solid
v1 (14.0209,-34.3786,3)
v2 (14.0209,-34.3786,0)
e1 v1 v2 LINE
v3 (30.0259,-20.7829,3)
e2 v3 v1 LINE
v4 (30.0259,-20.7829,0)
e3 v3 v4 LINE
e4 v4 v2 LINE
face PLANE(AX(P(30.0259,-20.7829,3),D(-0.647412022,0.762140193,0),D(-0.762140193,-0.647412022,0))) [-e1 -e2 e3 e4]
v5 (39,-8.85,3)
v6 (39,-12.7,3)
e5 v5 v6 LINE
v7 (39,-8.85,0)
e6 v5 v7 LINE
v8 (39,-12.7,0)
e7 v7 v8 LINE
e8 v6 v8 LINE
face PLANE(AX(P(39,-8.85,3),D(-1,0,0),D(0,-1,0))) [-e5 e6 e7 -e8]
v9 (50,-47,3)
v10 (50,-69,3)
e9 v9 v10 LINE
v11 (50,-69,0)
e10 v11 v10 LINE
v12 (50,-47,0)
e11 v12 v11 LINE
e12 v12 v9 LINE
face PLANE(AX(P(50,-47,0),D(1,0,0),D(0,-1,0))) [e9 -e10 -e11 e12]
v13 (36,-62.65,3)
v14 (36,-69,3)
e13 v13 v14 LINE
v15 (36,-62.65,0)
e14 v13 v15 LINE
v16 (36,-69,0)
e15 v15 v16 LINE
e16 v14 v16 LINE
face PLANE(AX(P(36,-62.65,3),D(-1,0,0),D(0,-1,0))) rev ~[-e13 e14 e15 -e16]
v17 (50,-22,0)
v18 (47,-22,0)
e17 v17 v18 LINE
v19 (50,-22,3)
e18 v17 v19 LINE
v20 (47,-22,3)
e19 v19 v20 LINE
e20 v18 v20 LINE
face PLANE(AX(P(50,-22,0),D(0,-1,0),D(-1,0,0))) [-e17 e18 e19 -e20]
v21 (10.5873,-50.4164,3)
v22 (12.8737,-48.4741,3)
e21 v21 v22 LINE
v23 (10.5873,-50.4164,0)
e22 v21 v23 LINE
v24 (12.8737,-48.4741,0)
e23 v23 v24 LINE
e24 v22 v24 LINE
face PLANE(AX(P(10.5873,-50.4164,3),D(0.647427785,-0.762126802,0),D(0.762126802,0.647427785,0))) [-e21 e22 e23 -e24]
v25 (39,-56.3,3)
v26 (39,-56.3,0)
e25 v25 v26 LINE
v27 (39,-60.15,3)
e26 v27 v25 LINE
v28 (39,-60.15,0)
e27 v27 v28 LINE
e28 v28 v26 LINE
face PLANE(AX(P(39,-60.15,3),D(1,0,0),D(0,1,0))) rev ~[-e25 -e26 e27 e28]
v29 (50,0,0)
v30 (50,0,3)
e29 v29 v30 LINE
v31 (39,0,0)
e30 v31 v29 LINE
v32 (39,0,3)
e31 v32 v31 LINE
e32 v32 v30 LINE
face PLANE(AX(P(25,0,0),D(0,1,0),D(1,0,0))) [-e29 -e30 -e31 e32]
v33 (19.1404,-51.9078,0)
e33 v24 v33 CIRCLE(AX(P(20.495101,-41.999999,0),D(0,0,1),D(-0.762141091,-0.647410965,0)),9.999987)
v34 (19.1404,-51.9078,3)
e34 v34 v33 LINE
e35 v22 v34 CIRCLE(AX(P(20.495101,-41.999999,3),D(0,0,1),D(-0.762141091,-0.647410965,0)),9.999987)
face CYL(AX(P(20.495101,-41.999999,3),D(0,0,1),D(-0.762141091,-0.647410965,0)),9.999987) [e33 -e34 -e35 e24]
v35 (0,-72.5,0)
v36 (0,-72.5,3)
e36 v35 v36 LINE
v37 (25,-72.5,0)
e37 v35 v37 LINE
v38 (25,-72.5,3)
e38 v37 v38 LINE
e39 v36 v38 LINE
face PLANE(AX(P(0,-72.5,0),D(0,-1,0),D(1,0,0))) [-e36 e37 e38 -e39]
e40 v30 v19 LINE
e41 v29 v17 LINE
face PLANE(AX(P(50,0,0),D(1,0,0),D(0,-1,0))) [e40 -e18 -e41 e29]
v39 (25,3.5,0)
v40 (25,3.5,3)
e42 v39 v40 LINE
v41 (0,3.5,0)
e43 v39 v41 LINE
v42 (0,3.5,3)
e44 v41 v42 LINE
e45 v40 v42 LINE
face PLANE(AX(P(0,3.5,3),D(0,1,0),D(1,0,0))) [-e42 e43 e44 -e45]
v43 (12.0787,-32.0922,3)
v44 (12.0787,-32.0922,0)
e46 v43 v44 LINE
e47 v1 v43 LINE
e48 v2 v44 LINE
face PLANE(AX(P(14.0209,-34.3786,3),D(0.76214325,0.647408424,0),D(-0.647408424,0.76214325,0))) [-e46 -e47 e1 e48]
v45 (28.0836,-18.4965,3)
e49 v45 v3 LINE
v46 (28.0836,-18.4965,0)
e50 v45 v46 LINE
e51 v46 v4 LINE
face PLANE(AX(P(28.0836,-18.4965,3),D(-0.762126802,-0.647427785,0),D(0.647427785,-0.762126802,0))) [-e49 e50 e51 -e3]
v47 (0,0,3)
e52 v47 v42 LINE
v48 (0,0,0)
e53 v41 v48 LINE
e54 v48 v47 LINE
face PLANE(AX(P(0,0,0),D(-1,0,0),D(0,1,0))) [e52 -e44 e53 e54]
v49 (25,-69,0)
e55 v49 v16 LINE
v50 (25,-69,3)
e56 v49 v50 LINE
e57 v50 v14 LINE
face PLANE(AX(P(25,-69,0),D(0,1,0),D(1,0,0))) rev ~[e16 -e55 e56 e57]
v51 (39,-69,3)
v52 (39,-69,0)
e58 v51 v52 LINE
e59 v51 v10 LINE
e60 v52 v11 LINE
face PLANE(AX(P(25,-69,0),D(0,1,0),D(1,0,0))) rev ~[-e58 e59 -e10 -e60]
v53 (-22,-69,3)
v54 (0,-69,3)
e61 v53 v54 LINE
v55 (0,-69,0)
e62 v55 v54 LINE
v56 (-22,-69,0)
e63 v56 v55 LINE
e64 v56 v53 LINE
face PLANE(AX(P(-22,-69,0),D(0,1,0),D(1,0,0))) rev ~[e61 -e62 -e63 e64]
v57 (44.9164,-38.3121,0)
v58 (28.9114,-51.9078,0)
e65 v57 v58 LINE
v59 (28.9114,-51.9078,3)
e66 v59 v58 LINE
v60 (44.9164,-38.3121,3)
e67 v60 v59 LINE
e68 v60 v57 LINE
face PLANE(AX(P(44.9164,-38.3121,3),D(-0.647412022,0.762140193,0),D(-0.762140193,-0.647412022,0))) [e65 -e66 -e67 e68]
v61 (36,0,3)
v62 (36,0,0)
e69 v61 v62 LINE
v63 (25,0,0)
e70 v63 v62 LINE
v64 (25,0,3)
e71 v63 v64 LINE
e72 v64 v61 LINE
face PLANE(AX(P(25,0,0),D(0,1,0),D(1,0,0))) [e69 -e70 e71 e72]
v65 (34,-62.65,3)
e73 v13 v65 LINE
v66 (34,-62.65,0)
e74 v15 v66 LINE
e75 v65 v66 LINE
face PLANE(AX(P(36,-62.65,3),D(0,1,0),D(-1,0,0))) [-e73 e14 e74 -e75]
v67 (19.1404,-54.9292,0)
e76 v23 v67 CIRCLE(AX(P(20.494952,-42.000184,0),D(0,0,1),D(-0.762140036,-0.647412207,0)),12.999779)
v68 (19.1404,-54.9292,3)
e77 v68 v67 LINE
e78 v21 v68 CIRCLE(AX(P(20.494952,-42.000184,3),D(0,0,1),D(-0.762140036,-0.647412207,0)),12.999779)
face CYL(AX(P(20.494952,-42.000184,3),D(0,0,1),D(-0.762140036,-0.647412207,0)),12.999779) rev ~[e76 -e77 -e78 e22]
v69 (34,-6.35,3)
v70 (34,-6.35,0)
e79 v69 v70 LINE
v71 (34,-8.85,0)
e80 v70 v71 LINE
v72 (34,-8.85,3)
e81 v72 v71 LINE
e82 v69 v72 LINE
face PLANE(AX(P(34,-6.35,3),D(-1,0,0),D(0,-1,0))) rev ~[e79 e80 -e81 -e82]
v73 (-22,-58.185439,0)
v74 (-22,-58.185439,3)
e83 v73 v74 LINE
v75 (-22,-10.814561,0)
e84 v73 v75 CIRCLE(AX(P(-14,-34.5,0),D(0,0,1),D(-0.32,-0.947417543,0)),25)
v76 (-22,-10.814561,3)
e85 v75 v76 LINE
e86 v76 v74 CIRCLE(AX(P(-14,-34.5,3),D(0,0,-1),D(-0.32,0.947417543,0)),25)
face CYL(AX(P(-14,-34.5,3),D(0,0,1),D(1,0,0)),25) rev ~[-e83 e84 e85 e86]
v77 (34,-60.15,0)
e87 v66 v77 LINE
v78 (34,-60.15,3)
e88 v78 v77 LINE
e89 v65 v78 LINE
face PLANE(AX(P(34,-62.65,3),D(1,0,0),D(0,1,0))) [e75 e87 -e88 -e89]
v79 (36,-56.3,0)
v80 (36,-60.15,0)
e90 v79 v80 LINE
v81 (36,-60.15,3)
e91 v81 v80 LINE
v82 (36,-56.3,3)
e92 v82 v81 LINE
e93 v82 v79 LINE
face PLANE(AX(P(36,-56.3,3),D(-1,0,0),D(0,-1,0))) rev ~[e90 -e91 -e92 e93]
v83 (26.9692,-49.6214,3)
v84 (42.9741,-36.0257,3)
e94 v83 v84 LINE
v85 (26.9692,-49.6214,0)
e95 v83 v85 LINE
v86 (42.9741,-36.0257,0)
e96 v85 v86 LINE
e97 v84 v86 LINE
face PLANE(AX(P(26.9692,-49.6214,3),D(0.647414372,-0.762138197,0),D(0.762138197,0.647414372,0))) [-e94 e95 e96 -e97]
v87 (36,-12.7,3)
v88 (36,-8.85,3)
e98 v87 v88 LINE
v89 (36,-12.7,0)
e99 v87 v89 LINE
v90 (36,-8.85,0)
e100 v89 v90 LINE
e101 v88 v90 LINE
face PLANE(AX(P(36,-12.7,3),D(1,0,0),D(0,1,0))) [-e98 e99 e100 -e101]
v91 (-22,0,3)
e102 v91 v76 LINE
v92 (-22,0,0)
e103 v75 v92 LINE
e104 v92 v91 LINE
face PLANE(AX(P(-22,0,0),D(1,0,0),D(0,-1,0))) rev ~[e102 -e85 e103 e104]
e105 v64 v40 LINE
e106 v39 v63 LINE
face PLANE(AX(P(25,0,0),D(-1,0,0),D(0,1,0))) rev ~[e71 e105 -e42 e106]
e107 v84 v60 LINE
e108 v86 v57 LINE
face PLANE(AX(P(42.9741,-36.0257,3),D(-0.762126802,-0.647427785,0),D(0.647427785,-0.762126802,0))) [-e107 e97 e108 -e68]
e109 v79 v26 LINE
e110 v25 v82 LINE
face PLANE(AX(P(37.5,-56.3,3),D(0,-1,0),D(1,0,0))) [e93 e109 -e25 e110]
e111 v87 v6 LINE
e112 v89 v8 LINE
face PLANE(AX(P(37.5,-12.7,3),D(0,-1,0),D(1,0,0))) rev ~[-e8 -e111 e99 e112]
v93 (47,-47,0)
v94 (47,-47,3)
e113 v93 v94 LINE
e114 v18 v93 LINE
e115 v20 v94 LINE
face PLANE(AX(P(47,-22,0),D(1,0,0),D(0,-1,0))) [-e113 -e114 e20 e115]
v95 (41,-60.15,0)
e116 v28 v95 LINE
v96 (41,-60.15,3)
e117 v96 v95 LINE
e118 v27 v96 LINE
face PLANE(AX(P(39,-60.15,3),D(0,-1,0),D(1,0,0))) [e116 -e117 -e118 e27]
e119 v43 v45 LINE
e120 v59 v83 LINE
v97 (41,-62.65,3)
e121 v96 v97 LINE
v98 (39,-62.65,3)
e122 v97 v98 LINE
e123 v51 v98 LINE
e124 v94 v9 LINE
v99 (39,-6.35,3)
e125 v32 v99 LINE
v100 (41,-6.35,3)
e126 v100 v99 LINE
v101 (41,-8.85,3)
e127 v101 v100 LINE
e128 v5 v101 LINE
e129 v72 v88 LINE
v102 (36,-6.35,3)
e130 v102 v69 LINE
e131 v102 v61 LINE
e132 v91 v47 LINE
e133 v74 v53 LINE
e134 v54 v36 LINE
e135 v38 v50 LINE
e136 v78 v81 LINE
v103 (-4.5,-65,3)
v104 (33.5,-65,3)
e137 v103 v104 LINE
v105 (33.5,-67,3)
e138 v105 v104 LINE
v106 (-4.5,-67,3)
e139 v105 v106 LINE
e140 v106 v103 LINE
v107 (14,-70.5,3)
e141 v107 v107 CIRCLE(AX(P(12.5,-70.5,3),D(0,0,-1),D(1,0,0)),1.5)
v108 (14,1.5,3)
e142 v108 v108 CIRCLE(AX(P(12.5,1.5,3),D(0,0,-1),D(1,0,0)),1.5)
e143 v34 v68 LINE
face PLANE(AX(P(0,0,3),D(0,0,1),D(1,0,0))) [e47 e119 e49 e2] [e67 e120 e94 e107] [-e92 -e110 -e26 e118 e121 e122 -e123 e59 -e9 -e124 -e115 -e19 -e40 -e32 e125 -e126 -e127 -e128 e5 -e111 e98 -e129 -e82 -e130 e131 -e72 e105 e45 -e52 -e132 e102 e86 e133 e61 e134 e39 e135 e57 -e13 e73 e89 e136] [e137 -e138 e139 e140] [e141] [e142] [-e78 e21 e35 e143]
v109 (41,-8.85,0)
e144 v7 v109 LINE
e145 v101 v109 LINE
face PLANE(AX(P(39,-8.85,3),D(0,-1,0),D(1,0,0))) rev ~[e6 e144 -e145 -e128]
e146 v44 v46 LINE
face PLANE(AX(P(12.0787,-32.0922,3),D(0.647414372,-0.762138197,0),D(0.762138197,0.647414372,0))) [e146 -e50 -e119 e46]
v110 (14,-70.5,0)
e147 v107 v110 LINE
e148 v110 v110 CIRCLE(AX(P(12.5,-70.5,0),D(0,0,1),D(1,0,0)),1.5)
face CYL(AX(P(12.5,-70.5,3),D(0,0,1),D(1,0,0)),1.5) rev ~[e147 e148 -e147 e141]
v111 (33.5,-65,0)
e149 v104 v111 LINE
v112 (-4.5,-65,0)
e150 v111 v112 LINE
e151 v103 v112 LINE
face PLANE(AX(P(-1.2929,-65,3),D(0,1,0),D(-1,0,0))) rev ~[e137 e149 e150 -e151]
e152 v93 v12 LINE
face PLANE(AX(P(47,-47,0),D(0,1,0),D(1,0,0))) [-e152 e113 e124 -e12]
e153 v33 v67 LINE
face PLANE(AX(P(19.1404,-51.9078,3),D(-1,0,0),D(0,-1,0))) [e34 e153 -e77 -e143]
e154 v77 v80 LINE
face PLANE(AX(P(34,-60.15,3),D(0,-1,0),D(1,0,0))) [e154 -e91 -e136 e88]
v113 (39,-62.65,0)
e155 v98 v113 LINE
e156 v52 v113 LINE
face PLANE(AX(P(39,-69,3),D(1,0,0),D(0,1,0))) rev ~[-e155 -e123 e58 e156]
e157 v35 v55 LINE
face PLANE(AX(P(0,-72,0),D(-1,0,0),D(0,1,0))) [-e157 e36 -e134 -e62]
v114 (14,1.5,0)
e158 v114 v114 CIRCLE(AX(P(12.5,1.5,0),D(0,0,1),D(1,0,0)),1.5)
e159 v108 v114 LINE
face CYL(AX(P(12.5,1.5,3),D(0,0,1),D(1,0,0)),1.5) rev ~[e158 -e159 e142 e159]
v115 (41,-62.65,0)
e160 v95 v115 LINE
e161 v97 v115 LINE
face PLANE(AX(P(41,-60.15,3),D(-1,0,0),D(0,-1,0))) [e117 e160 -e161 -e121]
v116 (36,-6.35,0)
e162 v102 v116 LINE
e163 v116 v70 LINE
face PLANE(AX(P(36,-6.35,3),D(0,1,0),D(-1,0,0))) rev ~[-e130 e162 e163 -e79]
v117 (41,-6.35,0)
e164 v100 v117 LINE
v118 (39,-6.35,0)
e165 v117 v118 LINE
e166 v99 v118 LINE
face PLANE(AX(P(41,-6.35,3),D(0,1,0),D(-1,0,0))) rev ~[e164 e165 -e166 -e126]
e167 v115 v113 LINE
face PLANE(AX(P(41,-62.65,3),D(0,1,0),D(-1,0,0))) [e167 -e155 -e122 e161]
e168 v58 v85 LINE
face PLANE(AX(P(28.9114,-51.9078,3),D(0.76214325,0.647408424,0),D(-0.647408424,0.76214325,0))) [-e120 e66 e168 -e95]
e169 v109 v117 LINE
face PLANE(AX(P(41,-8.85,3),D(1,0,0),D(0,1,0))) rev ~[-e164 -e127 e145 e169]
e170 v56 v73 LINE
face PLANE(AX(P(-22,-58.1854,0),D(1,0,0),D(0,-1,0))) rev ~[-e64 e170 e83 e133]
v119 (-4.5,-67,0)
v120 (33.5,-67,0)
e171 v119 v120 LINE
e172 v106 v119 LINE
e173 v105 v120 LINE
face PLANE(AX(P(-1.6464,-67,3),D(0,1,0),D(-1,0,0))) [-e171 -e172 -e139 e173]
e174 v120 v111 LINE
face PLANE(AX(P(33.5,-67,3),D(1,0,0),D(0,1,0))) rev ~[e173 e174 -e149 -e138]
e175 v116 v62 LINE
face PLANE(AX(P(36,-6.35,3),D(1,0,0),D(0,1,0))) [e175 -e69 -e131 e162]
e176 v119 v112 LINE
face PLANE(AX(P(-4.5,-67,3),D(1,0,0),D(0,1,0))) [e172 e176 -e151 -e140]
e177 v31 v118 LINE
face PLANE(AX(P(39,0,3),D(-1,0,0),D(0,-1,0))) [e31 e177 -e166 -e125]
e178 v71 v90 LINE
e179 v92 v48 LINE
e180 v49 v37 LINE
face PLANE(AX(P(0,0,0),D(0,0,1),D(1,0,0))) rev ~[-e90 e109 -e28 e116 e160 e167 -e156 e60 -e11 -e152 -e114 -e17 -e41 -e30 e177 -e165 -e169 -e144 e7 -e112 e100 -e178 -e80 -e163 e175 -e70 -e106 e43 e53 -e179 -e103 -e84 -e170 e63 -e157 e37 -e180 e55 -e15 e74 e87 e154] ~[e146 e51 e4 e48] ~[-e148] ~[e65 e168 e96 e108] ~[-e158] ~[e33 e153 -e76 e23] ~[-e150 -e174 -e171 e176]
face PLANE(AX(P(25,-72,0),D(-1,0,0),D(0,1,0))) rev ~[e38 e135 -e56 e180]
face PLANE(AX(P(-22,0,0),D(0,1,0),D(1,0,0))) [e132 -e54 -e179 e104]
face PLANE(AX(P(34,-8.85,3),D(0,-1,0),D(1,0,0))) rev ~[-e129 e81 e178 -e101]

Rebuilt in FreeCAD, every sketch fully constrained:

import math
import FreeCAD as App
import Part
import Sketcher

doc = App.newDocument("Part")
body = doc.addObject("PartDesign::Body", "Body")

sketch1 = body.newObject("Sketcher::SketchObject", "Sketch")
sketch1.AttachmentSupport = (doc.getObject("XY_Plane"), [""])
sketch1.MapMode = "FlatFace"
sketch1.addGeometry(Part.LineSegment(App.Vector(0, 3, 0), App.Vector(0, 0, 0)), False)
sketch1.addGeometry(Part.LineSegment(App.Vector(0, 0, 0), App.Vector(-22, 0, 0)), False)
sketch1.addGeometry(Part.LineSegment(App.Vector(-22, 0, 0), App.Vector(-22, -22, 0)), False)
sketch1.addGeometry(Part.LineSegment(App.Vector(-22, -22, 0), App.Vector(-25, -22, 0)), False)
sketch1.addGeometry(Part.LineSegment(App.Vector(-25, -22, 0), App.Vector(-25, -47, 0)), False)
sketch1.addGeometry(Part.LineSegment(App.Vector(-25, -47, 0), App.Vector(-22, -47, 0)), False)
sketch1.addGeometry(Part.LineSegment(App.Vector(-22, -47, 0), App.Vector(-22, -69, 0)), False)
sketch1.addGeometry(Part.LineSegment(App.Vector(-22, -69, 0), App.Vector(0, -69, 0)), False)
sketch1.addGeometry(Part.LineSegment(App.Vector(0, -69, 0), App.Vector(0, -72, 0)), False)
sketch1.addGeometry(Part.LineSegment(App.Vector(0, -72, 0), App.Vector(25, -72, 0)), False)
sketch1.addGeometry(Part.LineSegment(App.Vector(25, -72, 0), App.Vector(25, -69, 0)), False)
sketch1.addGeometry(Part.LineSegment(App.Vector(25, -69, 0), App.Vector(50, -69, 0)), False)
sketch1.addGeometry(Part.LineSegment(App.Vector(50, -69, 0), App.Vector(50, -47, 0)), False)
sketch1.addGeometry(Part.LineSegment(App.Vector(50, -47, 0), App.Vector(47, -47, 0)), False)
sketch1.addGeometry(Part.LineSegment(App.Vector(47, -47, 0), App.Vector(47, -22, 0)), False)
sketch1.addGeometry(Part.LineSegment(App.Vector(47, -22, 0), App.Vector(50, -22, 0)), False)
sketch1.addGeometry(Part.LineSegment(App.Vector(50, -22, 0), App.Vector(50, 0, 0)), False)
sketch1.addGeometry(Part.LineSegment(App.Vector(50, 0, 0), App.Vector(25, 0, 0)), False)
sketch1.addGeometry(Part.LineSegment(App.Vector(25, 0, 0), App.Vector(25, 3, 0)), False)
sketch1.addGeometry(Part.LineSegment(App.Vector(25, 3, 0), App.Vector(0, 3, 0)), False)
sketch1.addConstraint(Sketcher.Constraint("Coincident", 0, 2, 1, 1))
sketch1.addConstraint(Sketcher.Constraint("Coincident", 1, 2, 2, 1))
sketch1.addConstraint(Sketcher.Constraint("Coincident", 2, 2, 3, 1))
sketch1.addConstraint(Sketcher.Constraint("Coincident", 3, 2, 4, 1))
sketch1.addConstraint(Sketcher.Constraint("Coincident", 4, 2, 5, 1))
sketch1.addConstraint(Sketcher.Constraint("Coincident", 5, 2, 6, 1))
sketch1.addConstraint(Sketcher.Constraint("Coincident", 6, 2, 7, 1))
sketch1.addConstraint(Sketcher.Constraint("Coincident", 7, 2, 8, 1))
sketch1.addConstraint(Sketcher.Constraint("Coincident", 8, 2, 9, 1))
sketch1.addConstraint(Sketcher.Constraint("Coincident", 9, 2, 10, 1))
sketch1.addConstraint(Sketcher.Constraint("Coincident", 10, 2, 11, 1))
sketch1.addConstraint(Sketcher.Constraint("Coincident", 11, 2, 12, 1))
sketch1.addConstraint(Sketcher.Constraint("Coincident", 12, 2, 13, 1))
sketch1.addConstraint(Sketcher.Constraint("Coincident", 13, 2, 14, 1))
sketch1.addConstraint(Sketcher.Constraint("Coincident", 14, 2, 15, 1))
sketch1.addConstraint(Sketcher.Constraint("Coincident", 15, 2, 16, 1))
sketch1.addConstraint(Sketcher.Constraint("Coincident", 16, 2, 17, 1))
sketch1.addConstraint(Sketcher.Constraint("Coincident", 17, 2, 18, 1))
sketch1.addConstraint(Sketcher.Constraint("Coincident", 18, 2, 19, 1))
sketch1.addConstraint(Sketcher.Constraint("Coincident", 19, 2, 0, 1))
sketch1.addConstraint(Sketcher.Constraint("Vertical", 0))
sketch1.addConstraint(Sketcher.Constraint("Horizontal", 1))
sketch1.addConstraint(Sketcher.Constraint("Vertical", 2))
sketch1.addConstraint(Sketcher.Constraint("Horizontal", 3))
sketch1.addConstraint(Sketcher.Constraint("Vertical", 4))
sketch1.addConstraint(Sketcher.Constraint("Horizontal", 5))
sketch1.addConstraint(Sketcher.Constraint("Vertical", 6))
sketch1.addConstraint(Sketcher.Constraint("Horizontal", 7))
sketch1.addConstraint(Sketcher.Constraint("Vertical", 8))
sketch1.addConstraint(Sketcher.Constraint("Horizontal", 9))
sketch1.addConstraint(Sketcher.Constraint("Vertical", 10))
sketch1.addConstraint(Sketcher.Constraint("Horizontal", 11))
sketch1.addConstraint(Sketcher.Constraint("Vertical", 12))
sketch1.addConstraint(Sketcher.Constraint("Horizontal", 13))
sketch1.addConstraint(Sketcher.Constraint("Vertical", 14))
sketch1.addConstraint(Sketcher.Constraint("Horizontal", 15))
sketch1.addConstraint(Sketcher.Constraint("Vertical", 16))
sketch1.addConstraint(Sketcher.Constraint("Horizontal", 17))
sketch1.addConstraint(Sketcher.Constraint("Vertical", 18))
sketch1.addConstraint(Sketcher.Constraint("Horizontal", 19))
sketch1.addConstraint(Sketcher.Constraint("Coincident", 0, 2, -1, 1))
sketch1.addConstraint(Sketcher.Constraint("PointOnObject", 7, 2, -2))
sketch1.addConstraint(Sketcher.Constraint("PointOnObject", 16, 2, -1))
sketch1.addConstraint(Sketcher.Constraint("Horizontal", 7, 2, 10, 2))
sketch1.addConstraint(Sketcher.Constraint("Horizontal", 5, 2, 12, 2))
sketch1.addConstraint(Sketcher.Constraint("Horizontal", 3, 2, 14, 2))
sketch1.addConstraint(Sketcher.Constraint("Vertical", 2, 2, 5, 2))
sketch1.addConstraint(Sketcher.Constraint("Vertical", 12, 2, 15, 2))
sketch1.addConstraint(Sketcher.Constraint("Vertical", 10, 2, 17, 2))
sketch1.addConstraint(Sketcher.Constraint("Equal", 9, 11))
sketch1.addConstraint(Sketcher.Constraint("Equal", 5, 13))
sketch1.addConstraint(Sketcher.Constraint("Equal", 15, 0))
sketch1.addConstraint(Sketcher.Constraint("Equal", 7, 2))
sketch1.addConstraint(Sketcher.Constraint("Equal", 19, 4))
sketch1.addConstraint(Sketcher.Constraint("Equal", 2, 6))
sketch1.addConstraint(Sketcher.Constraint("Equal", 0, 8))
sketch1.addConstraint(Sketcher.Constraint("DistanceX", 3, 2, 3, 1, 3.0))
sketch1.addConstraint(Sketcher.Constraint("DistanceX", 1, 2, 1, 1, 22.0))
sketch1.addConstraint(Sketcher.Constraint("DistanceX", 9, 1, 9, 2, 25.0))
pad1 = body.newObject("PartDesign::Pad", "Pad")
pad1.Profile = sketch1
pad1.Length = 3

sketch2 = body.newObject("Sketcher::SketchObject", "Sketch001")
sketch2.AttachmentSupport = (doc.getObject("XY_Plane"), [""])
sketch2.MapMode = "FlatFace"
sketch2.AttachmentOffset = App.Placement(App.Vector(0, 0, 3), App.Rotation())
sketch2.addGeometry(Part.Circle(App.Vector(-14, -34, 0), App.Vector(0, 0, 1), 25), False)
sketch2.addConstraint(Sketcher.Constraint("Diameter", 0, 50.0))
sketch2.addConstraint(Sketcher.Constraint("DistanceX", 0, 3, -1, 1, 14.0))
sketch2.addConstraint(Sketcher.Constraint("DistanceY", 0, 3, -1, 1, 34.5))
pocket1 = body.newObject("PartDesign::Pocket", "Pocket")
pocket1.Profile = sketch2
pocket1.Length = 20

sketch3 = body.newObject("Sketcher::SketchObject", "Sketch002")
sketch3.AttachmentSupport = (doc.getObject("XY_Plane"), [""])
sketch3.MapMode = "FlatFace"
sketch3.AttachmentOffset = App.Placement(App.Vector(0, 0, 3), App.Rotation())
sketch3.addGeometry(Part.LineSegment(App.Vector(33.5, -65, 0), App.Vector(-4.5, -65, 0)), False)
sketch3.addGeometry(Part.LineSegment(App.Vector(-4.5, -65, 0), App.Vector(-4.5, -67, 0)), False)
sketch3.addGeometry(Part.LineSegment(App.Vector(-4.5, -67, 0), App.Vector(33.5, -67, 0)), False)
sketch3.addGeometry(Part.LineSegment(App.Vector(33.5, -67, 0), App.Vector(33.5, -65, 0)), False)
sketch3.addConstraint(Sketcher.Constraint("Coincident", 0, 2, 1, 1))
sketch3.addConstraint(Sketcher.Constraint("Coincident", 1, 2, 2, 1))
sketch3.addConstraint(Sketcher.Constraint("Coincident", 2, 2, 3, 1))
sketch3.addConstraint(Sketcher.Constraint("Coincident", 3, 2, 0, 1))
sketch3.addConstraint(Sketcher.Constraint("Horizontal", 0))
sketch3.addConstraint(Sketcher.Constraint("Vertical", 1))
sketch3.addConstraint(Sketcher.Constraint("Horizontal", 2))
sketch3.addConstraint(Sketcher.Constraint("Vertical", 3))
sketch3.addConstraint(Sketcher.Constraint("DistanceX", 0, 2, 0, 1, 38.0))
sketch3.addConstraint(Sketcher.Constraint("DistanceY", 1, 2, 1, 1, 2.0))
sketch3.addConstraint(Sketcher.Constraint("DistanceY", 0, 2, -1, 1, 65.0))
sketch3.addConstraint(Sketcher.Constraint("DistanceX", 0, 2, -1, 1, 4.5))
pocket2 = body.newObject("PartDesign::Pocket", "Pocket001")
pocket2.Profile = sketch3
pocket2.Length = 3

sketch4 = body.newObject("Sketcher::SketchObject", "Sketch003")
sketch4.AttachmentSupport = (doc.getObject("XY_Plane"), [""])
sketch4.MapMode = "FlatFace"
sketch4.AttachmentOffset = App.Placement(App.Vector(0, 0, 3), App.Rotation())
sketch4.addGeometry(Part.Circle(App.Vector(12.5, 1.5, 0), App.Vector(0, 0, 1), 1.5), False)
sketch4.addGeometry(Part.Circle(App.Vector(12.5, -70.5, 0), App.Vector(0, 0, 1), 1.5), False)
sketch4.addGeometry(Part.LineSegment(App.Vector(39, -69, 0), App.Vector(39, -62.6, 0)), False)
sketch4.addGeometry(Part.LineSegment(App.Vector(39, -62.6, 0), App.Vector(41, -62.6, 0)), False)
sketch4.addGeometry(Part.LineSegment(App.Vector(41, -62.6, 0), App.Vector(41, -60.1, 0)), False)
sketch4.addGeometry(Part.LineSegment(App.Vector(41, -60.1, 0), App.Vector(39, -60.1, 0)), False)
sketch4.addGeometry(Part.LineSegment(App.Vector(39, -60.1, 0), App.Vector(39, -56.3, 0)), False)
sketch4.addGeometry(Part.LineSegment(App.Vector(39, -56.3, 0), App.Vector(36, -56.3, 0)), False)
sketch4.addGeometry(Part.LineSegment(App.Vector(36, -56.3, 0), App.Vector(36, -60.1, 0)), False)
sketch4.addGeometry(Part.LineSegment(App.Vector(36, -60.1, 0), App.Vector(34, -60.1, 0)), False)
sketch4.addGeometry(Part.LineSegment(App.Vector(34, -60.1, 0), App.Vector(34, -62.6, 0)), False)
sketch4.addGeometry(Part.LineSegment(App.Vector(34, -62.6, 0), App.Vector(36, -62.6, 0)), False)
sketch4.addGeometry(Part.LineSegment(App.Vector(36, -62.6, 0), App.Vector(36, -69, 0)), False)
sketch4.addGeometry(Part.LineSegment(App.Vector(36, -69, 0), App.Vector(39, -69, 0)), False)
sketch4.addGeometry(Part.LineSegment(App.Vector(39, -6.3, 0), App.Vector(39, 0, 0)), False)
sketch4.addGeometry(Part.LineSegment(App.Vector(39, 0, 0), App.Vector(36, 0, 0)), False)
sketch4.addGeometry(Part.LineSegment(App.Vector(36, 0, 0), App.Vector(36, -6.3, 0)), False)
sketch4.addGeometry(Part.LineSegment(App.Vector(36, -6.3, 0), App.Vector(34, -6.3, 0)), False)
sketch4.addGeometry(Part.LineSegment(App.Vector(34, -6.3, 0), App.Vector(34, -8.8, 0)), False)
sketch4.addGeometry(Part.LineSegment(App.Vector(34, -8.8, 0), App.Vector(36, -8.8, 0)), False)
sketch4.addGeometry(Part.LineSegment(App.Vector(36, -8.8, 0), App.Vector(36, -12.7, 0)), False)
sketch4.addGeometry(Part.LineSegment(App.Vector(36, -12.7, 0), App.Vector(39, -12.7, 0)), False)
sketch4.addGeometry(Part.LineSegment(App.Vector(39, -12.7, 0), App.Vector(39, -8.8, 0)), False)
sketch4.addGeometry(Part.LineSegment(App.Vector(39, -8.8, 0), App.Vector(41, -8.8, 0)), False)
sketch4.addGeometry(Part.LineSegment(App.Vector(41, -8.8, 0), App.Vector(41, -6.3, 0)), False)
sketch4.addGeometry(Part.LineSegment(App.Vector(41, -6.3, 0), App.Vector(39, -6.3, 0)), False)
sketch4.addConstraint(Sketcher.Constraint("Coincident", 2, 2, 3, 1))
sketch4.addConstraint(Sketcher.Constraint("Coincident", 3, 2, 4, 1))
sketch4.addConstraint(Sketcher.Constraint("Coincident", 4, 2, 5, 1))
sketch4.addConstraint(Sketcher.Constraint("Coincident", 5, 2, 6, 1))
sketch4.addConstraint(Sketcher.Constraint("Coincident", 6, 2, 7, 1))
sketch4.addConstraint(Sketcher.Constraint("Coincident", 7, 2, 8, 1))
sketch4.addConstraint(Sketcher.Constraint("Coincident", 8, 2, 9, 1))
sketch4.addConstraint(Sketcher.Constraint("Coincident", 9, 2, 10, 1))
sketch4.addConstraint(Sketcher.Constraint("Coincident", 10, 2, 11, 1))
sketch4.addConstraint(Sketcher.Constraint("Coincident", 11, 2, 12, 1))
sketch4.addConstraint(Sketcher.Constraint("Coincident", 12, 2, 13, 1))
sketch4.addConstraint(Sketcher.Constraint("Coincident", 13, 2, 2, 1))
sketch4.addConstraint(Sketcher.Constraint("Coincident", 14, 2, 15, 1))
sketch4.addConstraint(Sketcher.Constraint("Coincident", 15, 2, 16, 1))
sketch4.addConstraint(Sketcher.Constraint("Coincident", 16, 2, 17, 1))
sketch4.addConstraint(Sketcher.Constraint("Coincident", 17, 2, 18, 1))
sketch4.addConstraint(Sketcher.Constraint("Coincident", 18, 2, 19, 1))
sketch4.addConstraint(Sketcher.Constraint("Coincident", 19, 2, 20, 1))
sketch4.addConstraint(Sketcher.Constraint("Coincident", 20, 2, 21, 1))
sketch4.addConstraint(Sketcher.Constraint("Coincident", 21, 2, 22, 1))
sketch4.addConstraint(Sketcher.Constraint("Coincident", 22, 2, 23, 1))
sketch4.addConstraint(Sketcher.Constraint("Coincident", 23, 2, 24, 1))
sketch4.addConstraint(Sketcher.Constraint("Coincident", 24, 2, 25, 1))
sketch4.addConstraint(Sketcher.Constraint("Coincident", 25, 2, 14, 1))
sketch4.addConstraint(Sketcher.Constraint("Vertical", 2))
sketch4.addConstraint(Sketcher.Constraint("Horizontal", 3))
sketch4.addConstraint(Sketcher.Constraint("Vertical", 4))
sketch4.addConstraint(Sketcher.Constraint("Horizontal", 5))
sketch4.addConstraint(Sketcher.Constraint("Vertical", 6))
sketch4.addConstraint(Sketcher.Constraint("Horizontal", 7))
sketch4.addConstraint(Sketcher.Constraint("Vertical", 8))
sketch4.addConstraint(Sketcher.Constraint("Horizontal", 9))
sketch4.addConstraint(Sketcher.Constraint("Vertical", 10))
sketch4.addConstraint(Sketcher.Constraint("Horizontal", 11))
sketch4.addConstraint(Sketcher.Constraint("Vertical", 12))
sketch4.addConstraint(Sketcher.Constraint("Horizontal", 13))
sketch4.addConstraint(Sketcher.Constraint("Vertical", 14))
sketch4.addConstraint(Sketcher.Constraint("Horizontal", 15))
sketch4.addConstraint(Sketcher.Constraint("Vertical", 16))
sketch4.addConstraint(Sketcher.Constraint("Horizontal", 17))
sketch4.addConstraint(Sketcher.Constraint("Vertical", 18))
sketch4.addConstraint(Sketcher.Constraint("Horizontal", 19))
sketch4.addConstraint(Sketcher.Constraint("Vertical", 20))
sketch4.addConstraint(Sketcher.Constraint("Horizontal", 21))
sketch4.addConstraint(Sketcher.Constraint("Vertical", 22))
sketch4.addConstraint(Sketcher.Constraint("Horizontal", 23))
sketch4.addConstraint(Sketcher.Constraint("Vertical", 24))
sketch4.addConstraint(Sketcher.Constraint("Horizontal", 25))
sketch4.addConstraint(Sketcher.Constraint("Equal", 0, 1))
sketch4.addConstraint(Sketcher.Constraint("PointOnObject", 14, 2, -1))
sketch4.addConstraint(Sketcher.Constraint("Horizontal", 5, 2, 8, 2))
sketch4.addConstraint(Sketcher.Constraint("Horizontal", 3, 2, 10, 2))
sketch4.addConstraint(Sketcher.Constraint("Horizontal", 19, 2, 22, 2))
sketch4.addConstraint(Sketcher.Constraint("Horizontal", 17, 2, 24, 2))
sketch4.addConstraint(Sketcher.Constraint("Vertical", 0, 3, 1, 3))
sketch4.addConstraint(Sketcher.Constraint("Vertical", 2, 2, 5, 2))
sketch4.addConstraint(Sketcher.Constraint("Vertical", 8, 2, 11, 2))
sketch4.addConstraint(Sketcher.Constraint("Vertical", 13, 2, 14, 2))
sketch4.addConstraint(Sketcher.Constraint("Vertical", 12, 2, 15, 2))
sketch4.addConstraint(Sketcher.Constraint("Vertical", 10, 2, 17, 2))
sketch4.addConstraint(Sketcher.Constraint("Vertical", 16, 2, 19, 2))
sketch4.addConstraint(Sketcher.Constraint("Vertical", 14, 2, 21, 2))
sketch4.addConstraint(Sketcher.Constraint("Vertical", 4, 2, 23, 2))
sketch4.addConstraint(Sketcher.Constraint("Equal", 5, 9))
sketch4.addConstraint(Sketcher.Constraint("Equal", 12, 14))
sketch4.addConstraint(Sketcher.Constraint("Equal", 10, 18))
sketch4.addConstraint(Sketcher.Constraint("Equal", 8, 20))
sketch4.addConstraint(Sketcher.Constraint("Diameter", 0, 3.0))
sketch4.addConstraint(Sketcher.Constraint("DistanceX", 3, 1, 3, 2, 2.0))
sketch4.addConstraint(Sketcher.Constraint("DistanceX", 7, 2, 7, 1, 3.0))
sketch4.addConstraint(Sketcher.Constraint("DistanceY", 4, 1, 4, 2, 2.5))
sketch4.addConstraint(Sketcher.Constraint("DistanceY", -1, 1, 0, 3, 1.5))
sketch4.addConstraint(Sketcher.Constraint("DistanceY", 20, 2, -1, 1, 12.7))
sketch4.addConstraint(Sketcher.Constraint("DistanceX", -1, 1, 2, 2, 39.0))
sketch4.addConstraint(Sketcher.Constraint("DistanceY", 12, 2, -1, 1, 69.0))
sketch4.addConstraint(Sketcher.Constraint("DistanceY", 1, 3, 0, 3, 72.0))
sketch4.addConstraint(Sketcher.Constraint("DistanceY", 2, 1, 2, 2, 6.35))
sketch4.addConstraint(Sketcher.Constraint("DistanceX", -1, 1, 0, 3, 12.5))
pocket3 = body.newObject("PartDesign::Pocket", "Pocket002")
pocket3.Profile = sketch4
pocket3.Length = 25.4

sketch5 = body.newObject("Sketcher::SketchObject", "Sketch004")
sketch5.AttachmentSupport = (doc.getObject("XY_Plane"), [""])
sketch5.MapMode = "FlatFace"
sketch5.AttachmentOffset = App.Placement(App.Vector(0, 0, 3), App.Rotation())
sketch5.addGeometry(Part.LineSegment(App.Vector(43, -36, 0), App.Vector(27, -49.6, 0)), False)
sketch5.addGeometry(Part.LineSegment(App.Vector(27, -49.6, 0), App.Vector(28.9, -51.9, 0)), False)
sketch5.addGeometry(Part.LineSegment(App.Vector(28.9, -51.9, 0), App.Vector(44.9, -38.3, 0)), False)
sketch5.addGeometry(Part.LineSegment(App.Vector(44.9, -38.3, 0), App.Vector(43, -36, 0)), False)
sketch5.addGeometry(Part.LineSegment(App.Vector(14, -34.4, 0), App.Vector(30, -20.8, 0)), False)
sketch5.addGeometry(Part.LineSegment(App.Vector(30, -20.8, 0), App.Vector(28.1, -18.5, 0)), False)
sketch5.addGeometry(Part.LineSegment(App.Vector(28.1, -18.5, 0), App.Vector(12.1, -32.1, 0)), False)
sketch5.addGeometry(Part.LineSegment(App.Vector(12.1, -32.1, 0), App.Vector(14, -34.4, 0)), False)
sketch5.addGeometry(Part.LineSegment(App.Vector(12.9, -48.5, 0), App.Vector(10.6, -50.4, 0)), False)
sketch5.addGeometry(Part.ArcOfCircle(Part.Circle(App.Vector(20.5, -42, 0), App.Vector(0, 0, 1), 13), math.radians(-140), math.radians(-96)), False)
sketch5.addGeometry(Part.LineSegment(App.Vector(19.1, -54.9, 0), App.Vector(19.1, -51.9, 0)), False)
sketch5.addGeometry(Part.ArcOfCircle(Part.Circle(App.Vector(20.5, -42, 0), App.Vector(0, 0, 1), 10), math.radians(-140), math.radians(-98)), False)
sketch5.addConstraint(Sketcher.Constraint("Coincident", 0, 2, 1, 1))
sketch5.addConstraint(Sketcher.Constraint("Coincident", 1, 2, 2, 1))
sketch5.addConstraint(Sketcher.Constraint("Coincident", 2, 2, 3, 1))
sketch5.addConstraint(Sketcher.Constraint("Coincident", 3, 2, 0, 1))
sketch5.addConstraint(Sketcher.Constraint("Coincident", 4, 2, 5, 1))
sketch5.addConstraint(Sketcher.Constraint("Coincident", 5, 2, 6, 1))
sketch5.addConstraint(Sketcher.Constraint("Coincident", 6, 2, 7, 1))
sketch5.addConstraint(Sketcher.Constraint("Coincident", 7, 2, 4, 1))
sketch5.addConstraint(Sketcher.Constraint("Coincident", 8, 2, 9, 1))
sketch5.addConstraint(Sketcher.Constraint("Coincident", 9, 2, 10, 1))
sketch5.addConstraint(Sketcher.Constraint("Coincident", 10, 2, 11, 2))
sketch5.addConstraint(Sketcher.Constraint("Coincident", 11, 1, 8, 1))
sketch5.addConstraint(Sketcher.Constraint("Vertical", 10))
sketch5.addConstraint(Sketcher.Constraint("Coincident", 11, 3, 9, 3))
sketch5.addConstraint(Sketcher.Constraint("Perpendicular", 0, 1))
sketch5.addConstraint(Sketcher.Constraint("Perpendicular", 1, 2))
sketch5.addConstraint(Sketcher.Constraint("Perpendicular", 2, 3))
sketch5.addConstraint(Sketcher.Constraint("Perpendicular", 3, 4))
sketch5.addConstraint(Sketcher.Constraint("Perpendicular", 4, 5))
sketch5.addConstraint(Sketcher.Constraint("Perpendicular", 5, 6))
sketch5.addConstraint(Sketcher.Constraint("Perpendicular", 6, 7))
sketch5.addConstraint(Sketcher.Constraint("Perpendicular", 7, 8))
sketch5.addConstraint(Sketcher.Constraint("Horizontal", 1, 2, 10, 2))
sketch5.addConstraint(Sketcher.Constraint("Equal", 2, 4))
sketch5.addConstraint(Sketcher.Constraint("Equal", 3, 5))
sketch5.addConstraint(Sketcher.Constraint("Equal", 7, 8))
sketch5.addConstraint(Sketcher.Constraint("Radius", 9, 13.0))
sketch5.addConstraint(Sketcher.Constraint("Radius", 11, 10.0))
sketch5.addConstraint(Sketcher.Constraint("Distance", 0, 21.0))
sketch5.addConstraint(Sketcher.Constraint("DistanceY", 9, 3, -1, 1, 42.0))
sketch5.addConstraint(Sketcher.Constraint("DistanceY", 10, 1, 10, 2, 3.0214))
sketch5.addConstraint(Sketcher.Constraint("DistanceX", -1, 1, 9, 3, 20.495))
sketch5.addConstraint(Sketcher.Constraint("DistanceY", 2, 2, -1, 1, 38.312))
sketch5.addConstraint(Sketcher.Constraint("DistanceX", -1, 1, 3, 2, 42.974))
sketch5.addConstraint(Sketcher.Constraint("DistanceX", -1, 1, 4, 2, 30.026))
sketch5.addConstraint(Sketcher.Constraint("DistanceY", 4, 2, -1, 1, 20.783))
sketch5.addConstraint(Sketcher.Constraint("DistanceY", 11, 1, -1, 1, 48.474))
pocket4 = body.newObject("PartDesign::Pocket", "Pocket003")
pocket4.Profile = sketch5
pocket4.Length = 25.4

sketch6 = body.newObject("Sketcher::SketchObject", "Sketch005")
sketch6.AttachmentSupport = (doc.getObject("XZ_Plane"), [""])
sketch6.MapMode = "FlatFace"
sketch6.AttachmentOffset = App.Placement(App.Vector(0, 0, -3), App.Rotation())
sketch6.addGeometry(Part.LineSegment(App.Vector(0, 3, 0), App.Vector(25, 3, 0)), False)
sketch6.addGeometry(Part.LineSegment(App.Vector(25, 3, 0), App.Vector(25, 0, 0)), False)
sketch6.addGeometry(Part.LineSegment(App.Vector(25, 0, 0), App.Vector(0, 0, 0)), False)
sketch6.addGeometry(Part.LineSegment(App.Vector(0, 0, 0), App.Vector(0, 3, 0)), False)
sketch6.addConstraint(Sketcher.Constraint("Coincident", 0, 2, 1, 1))
sketch6.addConstraint(Sketcher.Constraint("Coincident", 1, 2, 2, 1))
sketch6.addConstraint(Sketcher.Constraint("Coincident", 2, 2, 3, 1))
sketch6.addConstraint(Sketcher.Constraint("Coincident", 3, 2, 0, 1))
sketch6.addConstraint(Sketcher.Constraint("Horizontal", 0))
sketch6.addConstraint(Sketcher.Constraint("Vertical", 1))
sketch6.addConstraint(Sketcher.Constraint("Horizontal", 2))
sketch6.addConstraint(Sketcher.Constraint("Vertical", 3))
sketch6.addConstraint(Sketcher.Constraint("Coincident", 2, 2, -1, 1))
sketch6.addConstraint(Sketcher.Constraint("DistanceX", 0, 1, 0, 2, 25.0))
sketch6.addConstraint(Sketcher.Constraint("DistanceY", 1, 2, 1, 1, 3.0))
pad2 = body.newObject("PartDesign::Pad", "Pad001")
pad2.Profile = sketch6
pad2.Length = 0.5
pad2.Reversed = True

sketch7 = body.newObject("Sketcher::SketchObject", "Sketch006")
sketch7.AttachmentSupport = (doc.getObject("XZ_Plane"), [""])
sketch7.MapMode = "FlatFace"
sketch7.AttachmentOffset = App.Placement(App.Vector(0, 0, 72), App.Rotation())
sketch7.addGeometry(Part.LineSegment(App.Vector(25, 3, 0), App.Vector(0, 3, 0)), False)
sketch7.addGeometry(Part.LineSegment(App.Vector(0, 3, 0), App.Vector(0, 0, 0)), False)
sketch7.addGeometry(Part.LineSegment(App.Vector(0, 0, 0), App.Vector(25, 0, 0)), False)
sketch7.addGeometry(Part.LineSegment(App.Vector(25, 0, 0), App.Vector(25, 3, 0)), False)
sketch7.addConstraint(Sketcher.Constraint("Coincident", 0, 2, 1, 1))
sketch7.addConstraint(Sketcher.Constraint("Coincident", 1, 2, 2, 1))
sketch7.addConstraint(Sketcher.Constraint("Coincident", 2, 2, 3, 1))
sketch7.addConstraint(Sketcher.Constraint("Coincident", 3, 2, 0, 1))
sketch7.addConstraint(Sketcher.Constraint("Horizontal", 0))
sketch7.addConstraint(Sketcher.Constraint("Vertical", 1))
sketch7.addConstraint(Sketcher.Constraint("Horizontal", 2))
sketch7.addConstraint(Sketcher.Constraint("Vertical", 3))
sketch7.addConstraint(Sketcher.Constraint("Coincident", 1, 2, -1, 1))
sketch7.addConstraint(Sketcher.Constraint("DistanceX", 0, 2, 0, 1, 25.0))
sketch7.addConstraint(Sketcher.Constraint("DistanceY", 1, 2, 1, 1, 3.0))
pad3 = body.newObject("PartDesign::Pad", "Pad002")
pad3.Profile = sketch7
pad3.Length = 0.5

doc.recompute()
